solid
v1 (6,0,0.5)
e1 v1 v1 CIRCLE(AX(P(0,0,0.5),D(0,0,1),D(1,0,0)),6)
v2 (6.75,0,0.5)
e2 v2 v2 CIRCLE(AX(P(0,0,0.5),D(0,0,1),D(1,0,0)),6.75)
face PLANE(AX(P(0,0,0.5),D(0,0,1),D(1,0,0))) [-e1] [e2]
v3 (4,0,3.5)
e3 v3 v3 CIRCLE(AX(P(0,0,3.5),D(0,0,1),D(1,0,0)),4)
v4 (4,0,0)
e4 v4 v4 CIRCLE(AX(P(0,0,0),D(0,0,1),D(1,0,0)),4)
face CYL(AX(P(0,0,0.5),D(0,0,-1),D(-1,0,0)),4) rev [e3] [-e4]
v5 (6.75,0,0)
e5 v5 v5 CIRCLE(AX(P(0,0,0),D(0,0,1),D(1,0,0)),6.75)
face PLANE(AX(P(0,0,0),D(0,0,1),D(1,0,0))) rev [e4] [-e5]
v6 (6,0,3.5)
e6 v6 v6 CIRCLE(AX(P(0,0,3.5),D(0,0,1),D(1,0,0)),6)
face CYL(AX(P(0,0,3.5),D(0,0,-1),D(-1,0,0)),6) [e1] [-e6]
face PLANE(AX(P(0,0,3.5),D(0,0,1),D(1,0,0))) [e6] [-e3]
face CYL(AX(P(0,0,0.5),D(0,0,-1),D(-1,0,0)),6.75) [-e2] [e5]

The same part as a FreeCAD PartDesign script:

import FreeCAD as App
import Part
import Sketcher

doc = App.newDocument("Part")
params = doc.addObject("Spreadsheet::Sheet", "Params")
for row, (alias, value) in enumerate([
    ("sketch1_diameter", "8 mm"),
    ("sketch1_diameter2", "13.5 mm"),
    ("pad1_length", "0.5 mm"),
    ("sketch2_diameter", "12 mm"),
    ("sketch2_diameter2", "8 mm"),
    ("pad2_length", "3 mm"),
], start=1):
    params.set(f"A{row}", alias)
    params.set(f"B{row}", "=" + value)
    params.setAlias(f"B{row}", alias)

body = doc.addObject("PartDesign::Body", "Body")

sketch1 = body.newObject("Sketcher::SketchObject", "Sketch")
sketch1.AttachmentSupport = (doc.getObject("XY_Plane"), [""])
sketch1.MapMode = "FlatFace"
sketch1.addGeometry([
    Part.Circle(App.Vector(0, 0, 0), App.Vector(0, 0, 1), 6.8),
    Part.Circle(App.Vector(0, 0, 0), App.Vector(0, 0, 1), 4),
], False)
sketch1.addConstraint([
    Sketcher.Constraint("Coincident", 0, 3, -1, 1),
    Sketcher.Constraint("Coincident", 1, 3, -1, 1),
    Sketcher.Constraint("Diameter", 1, 8.0),
    Sketcher.Constraint("Diameter", 0, 13.5),
])
sketch1.setExpression("Constraints[2]", "Params.sketch1_diameter")
sketch1.setExpression("Constraints[3]", "Params.sketch1_diameter2")
pad1 = body.newObject("PartDesign::Pad", "Pad")
pad1.Profile = sketch1
pad1.setExpression("Length", "Params.pad1_length")

sketch2 = body.newObject("Sketcher::SketchObject", "Sketch001")
sketch2.AttachmentSupport = (doc.getObject("XY_Plane"), [""])
sketch2.MapMode = "FlatFace"
sketch2.AttachmentOffset = App.Placement(App.Vector(0, 0, 0.5), App.Rotation())
sketch2.addGeometry([
    Part.Circle(App.Vector(0, 0, 0), App.Vector(0, 0, 1), 6),
    Part.Circle(App.Vector(0, 0, 0), App.Vector(0, 0, 1), 4),
], False)
sketch2.addConstraint([
    Sketcher.Constraint("Coincident", 0, 3, -1, 1),
    Sketcher.Constraint("Coincident", 1, 3, -1, 1),
    Sketcher.Constraint("Diameter", 0, 12.0),
    Sketcher.Constraint("Diameter", 1, 8.0),
])
sketch2.setExpression("Constraints[2]", "Params.sketch2_diameter")
sketch2.setExpression("Constraints[3]", "Params.sketch2_diameter2")
pad2 = body.newObject("PartDesign::Pad", "Pad001")
pad2.Profile = sketch2
pad2.setExpression("Length", "Params.pad2_length")

doc.recompute()
